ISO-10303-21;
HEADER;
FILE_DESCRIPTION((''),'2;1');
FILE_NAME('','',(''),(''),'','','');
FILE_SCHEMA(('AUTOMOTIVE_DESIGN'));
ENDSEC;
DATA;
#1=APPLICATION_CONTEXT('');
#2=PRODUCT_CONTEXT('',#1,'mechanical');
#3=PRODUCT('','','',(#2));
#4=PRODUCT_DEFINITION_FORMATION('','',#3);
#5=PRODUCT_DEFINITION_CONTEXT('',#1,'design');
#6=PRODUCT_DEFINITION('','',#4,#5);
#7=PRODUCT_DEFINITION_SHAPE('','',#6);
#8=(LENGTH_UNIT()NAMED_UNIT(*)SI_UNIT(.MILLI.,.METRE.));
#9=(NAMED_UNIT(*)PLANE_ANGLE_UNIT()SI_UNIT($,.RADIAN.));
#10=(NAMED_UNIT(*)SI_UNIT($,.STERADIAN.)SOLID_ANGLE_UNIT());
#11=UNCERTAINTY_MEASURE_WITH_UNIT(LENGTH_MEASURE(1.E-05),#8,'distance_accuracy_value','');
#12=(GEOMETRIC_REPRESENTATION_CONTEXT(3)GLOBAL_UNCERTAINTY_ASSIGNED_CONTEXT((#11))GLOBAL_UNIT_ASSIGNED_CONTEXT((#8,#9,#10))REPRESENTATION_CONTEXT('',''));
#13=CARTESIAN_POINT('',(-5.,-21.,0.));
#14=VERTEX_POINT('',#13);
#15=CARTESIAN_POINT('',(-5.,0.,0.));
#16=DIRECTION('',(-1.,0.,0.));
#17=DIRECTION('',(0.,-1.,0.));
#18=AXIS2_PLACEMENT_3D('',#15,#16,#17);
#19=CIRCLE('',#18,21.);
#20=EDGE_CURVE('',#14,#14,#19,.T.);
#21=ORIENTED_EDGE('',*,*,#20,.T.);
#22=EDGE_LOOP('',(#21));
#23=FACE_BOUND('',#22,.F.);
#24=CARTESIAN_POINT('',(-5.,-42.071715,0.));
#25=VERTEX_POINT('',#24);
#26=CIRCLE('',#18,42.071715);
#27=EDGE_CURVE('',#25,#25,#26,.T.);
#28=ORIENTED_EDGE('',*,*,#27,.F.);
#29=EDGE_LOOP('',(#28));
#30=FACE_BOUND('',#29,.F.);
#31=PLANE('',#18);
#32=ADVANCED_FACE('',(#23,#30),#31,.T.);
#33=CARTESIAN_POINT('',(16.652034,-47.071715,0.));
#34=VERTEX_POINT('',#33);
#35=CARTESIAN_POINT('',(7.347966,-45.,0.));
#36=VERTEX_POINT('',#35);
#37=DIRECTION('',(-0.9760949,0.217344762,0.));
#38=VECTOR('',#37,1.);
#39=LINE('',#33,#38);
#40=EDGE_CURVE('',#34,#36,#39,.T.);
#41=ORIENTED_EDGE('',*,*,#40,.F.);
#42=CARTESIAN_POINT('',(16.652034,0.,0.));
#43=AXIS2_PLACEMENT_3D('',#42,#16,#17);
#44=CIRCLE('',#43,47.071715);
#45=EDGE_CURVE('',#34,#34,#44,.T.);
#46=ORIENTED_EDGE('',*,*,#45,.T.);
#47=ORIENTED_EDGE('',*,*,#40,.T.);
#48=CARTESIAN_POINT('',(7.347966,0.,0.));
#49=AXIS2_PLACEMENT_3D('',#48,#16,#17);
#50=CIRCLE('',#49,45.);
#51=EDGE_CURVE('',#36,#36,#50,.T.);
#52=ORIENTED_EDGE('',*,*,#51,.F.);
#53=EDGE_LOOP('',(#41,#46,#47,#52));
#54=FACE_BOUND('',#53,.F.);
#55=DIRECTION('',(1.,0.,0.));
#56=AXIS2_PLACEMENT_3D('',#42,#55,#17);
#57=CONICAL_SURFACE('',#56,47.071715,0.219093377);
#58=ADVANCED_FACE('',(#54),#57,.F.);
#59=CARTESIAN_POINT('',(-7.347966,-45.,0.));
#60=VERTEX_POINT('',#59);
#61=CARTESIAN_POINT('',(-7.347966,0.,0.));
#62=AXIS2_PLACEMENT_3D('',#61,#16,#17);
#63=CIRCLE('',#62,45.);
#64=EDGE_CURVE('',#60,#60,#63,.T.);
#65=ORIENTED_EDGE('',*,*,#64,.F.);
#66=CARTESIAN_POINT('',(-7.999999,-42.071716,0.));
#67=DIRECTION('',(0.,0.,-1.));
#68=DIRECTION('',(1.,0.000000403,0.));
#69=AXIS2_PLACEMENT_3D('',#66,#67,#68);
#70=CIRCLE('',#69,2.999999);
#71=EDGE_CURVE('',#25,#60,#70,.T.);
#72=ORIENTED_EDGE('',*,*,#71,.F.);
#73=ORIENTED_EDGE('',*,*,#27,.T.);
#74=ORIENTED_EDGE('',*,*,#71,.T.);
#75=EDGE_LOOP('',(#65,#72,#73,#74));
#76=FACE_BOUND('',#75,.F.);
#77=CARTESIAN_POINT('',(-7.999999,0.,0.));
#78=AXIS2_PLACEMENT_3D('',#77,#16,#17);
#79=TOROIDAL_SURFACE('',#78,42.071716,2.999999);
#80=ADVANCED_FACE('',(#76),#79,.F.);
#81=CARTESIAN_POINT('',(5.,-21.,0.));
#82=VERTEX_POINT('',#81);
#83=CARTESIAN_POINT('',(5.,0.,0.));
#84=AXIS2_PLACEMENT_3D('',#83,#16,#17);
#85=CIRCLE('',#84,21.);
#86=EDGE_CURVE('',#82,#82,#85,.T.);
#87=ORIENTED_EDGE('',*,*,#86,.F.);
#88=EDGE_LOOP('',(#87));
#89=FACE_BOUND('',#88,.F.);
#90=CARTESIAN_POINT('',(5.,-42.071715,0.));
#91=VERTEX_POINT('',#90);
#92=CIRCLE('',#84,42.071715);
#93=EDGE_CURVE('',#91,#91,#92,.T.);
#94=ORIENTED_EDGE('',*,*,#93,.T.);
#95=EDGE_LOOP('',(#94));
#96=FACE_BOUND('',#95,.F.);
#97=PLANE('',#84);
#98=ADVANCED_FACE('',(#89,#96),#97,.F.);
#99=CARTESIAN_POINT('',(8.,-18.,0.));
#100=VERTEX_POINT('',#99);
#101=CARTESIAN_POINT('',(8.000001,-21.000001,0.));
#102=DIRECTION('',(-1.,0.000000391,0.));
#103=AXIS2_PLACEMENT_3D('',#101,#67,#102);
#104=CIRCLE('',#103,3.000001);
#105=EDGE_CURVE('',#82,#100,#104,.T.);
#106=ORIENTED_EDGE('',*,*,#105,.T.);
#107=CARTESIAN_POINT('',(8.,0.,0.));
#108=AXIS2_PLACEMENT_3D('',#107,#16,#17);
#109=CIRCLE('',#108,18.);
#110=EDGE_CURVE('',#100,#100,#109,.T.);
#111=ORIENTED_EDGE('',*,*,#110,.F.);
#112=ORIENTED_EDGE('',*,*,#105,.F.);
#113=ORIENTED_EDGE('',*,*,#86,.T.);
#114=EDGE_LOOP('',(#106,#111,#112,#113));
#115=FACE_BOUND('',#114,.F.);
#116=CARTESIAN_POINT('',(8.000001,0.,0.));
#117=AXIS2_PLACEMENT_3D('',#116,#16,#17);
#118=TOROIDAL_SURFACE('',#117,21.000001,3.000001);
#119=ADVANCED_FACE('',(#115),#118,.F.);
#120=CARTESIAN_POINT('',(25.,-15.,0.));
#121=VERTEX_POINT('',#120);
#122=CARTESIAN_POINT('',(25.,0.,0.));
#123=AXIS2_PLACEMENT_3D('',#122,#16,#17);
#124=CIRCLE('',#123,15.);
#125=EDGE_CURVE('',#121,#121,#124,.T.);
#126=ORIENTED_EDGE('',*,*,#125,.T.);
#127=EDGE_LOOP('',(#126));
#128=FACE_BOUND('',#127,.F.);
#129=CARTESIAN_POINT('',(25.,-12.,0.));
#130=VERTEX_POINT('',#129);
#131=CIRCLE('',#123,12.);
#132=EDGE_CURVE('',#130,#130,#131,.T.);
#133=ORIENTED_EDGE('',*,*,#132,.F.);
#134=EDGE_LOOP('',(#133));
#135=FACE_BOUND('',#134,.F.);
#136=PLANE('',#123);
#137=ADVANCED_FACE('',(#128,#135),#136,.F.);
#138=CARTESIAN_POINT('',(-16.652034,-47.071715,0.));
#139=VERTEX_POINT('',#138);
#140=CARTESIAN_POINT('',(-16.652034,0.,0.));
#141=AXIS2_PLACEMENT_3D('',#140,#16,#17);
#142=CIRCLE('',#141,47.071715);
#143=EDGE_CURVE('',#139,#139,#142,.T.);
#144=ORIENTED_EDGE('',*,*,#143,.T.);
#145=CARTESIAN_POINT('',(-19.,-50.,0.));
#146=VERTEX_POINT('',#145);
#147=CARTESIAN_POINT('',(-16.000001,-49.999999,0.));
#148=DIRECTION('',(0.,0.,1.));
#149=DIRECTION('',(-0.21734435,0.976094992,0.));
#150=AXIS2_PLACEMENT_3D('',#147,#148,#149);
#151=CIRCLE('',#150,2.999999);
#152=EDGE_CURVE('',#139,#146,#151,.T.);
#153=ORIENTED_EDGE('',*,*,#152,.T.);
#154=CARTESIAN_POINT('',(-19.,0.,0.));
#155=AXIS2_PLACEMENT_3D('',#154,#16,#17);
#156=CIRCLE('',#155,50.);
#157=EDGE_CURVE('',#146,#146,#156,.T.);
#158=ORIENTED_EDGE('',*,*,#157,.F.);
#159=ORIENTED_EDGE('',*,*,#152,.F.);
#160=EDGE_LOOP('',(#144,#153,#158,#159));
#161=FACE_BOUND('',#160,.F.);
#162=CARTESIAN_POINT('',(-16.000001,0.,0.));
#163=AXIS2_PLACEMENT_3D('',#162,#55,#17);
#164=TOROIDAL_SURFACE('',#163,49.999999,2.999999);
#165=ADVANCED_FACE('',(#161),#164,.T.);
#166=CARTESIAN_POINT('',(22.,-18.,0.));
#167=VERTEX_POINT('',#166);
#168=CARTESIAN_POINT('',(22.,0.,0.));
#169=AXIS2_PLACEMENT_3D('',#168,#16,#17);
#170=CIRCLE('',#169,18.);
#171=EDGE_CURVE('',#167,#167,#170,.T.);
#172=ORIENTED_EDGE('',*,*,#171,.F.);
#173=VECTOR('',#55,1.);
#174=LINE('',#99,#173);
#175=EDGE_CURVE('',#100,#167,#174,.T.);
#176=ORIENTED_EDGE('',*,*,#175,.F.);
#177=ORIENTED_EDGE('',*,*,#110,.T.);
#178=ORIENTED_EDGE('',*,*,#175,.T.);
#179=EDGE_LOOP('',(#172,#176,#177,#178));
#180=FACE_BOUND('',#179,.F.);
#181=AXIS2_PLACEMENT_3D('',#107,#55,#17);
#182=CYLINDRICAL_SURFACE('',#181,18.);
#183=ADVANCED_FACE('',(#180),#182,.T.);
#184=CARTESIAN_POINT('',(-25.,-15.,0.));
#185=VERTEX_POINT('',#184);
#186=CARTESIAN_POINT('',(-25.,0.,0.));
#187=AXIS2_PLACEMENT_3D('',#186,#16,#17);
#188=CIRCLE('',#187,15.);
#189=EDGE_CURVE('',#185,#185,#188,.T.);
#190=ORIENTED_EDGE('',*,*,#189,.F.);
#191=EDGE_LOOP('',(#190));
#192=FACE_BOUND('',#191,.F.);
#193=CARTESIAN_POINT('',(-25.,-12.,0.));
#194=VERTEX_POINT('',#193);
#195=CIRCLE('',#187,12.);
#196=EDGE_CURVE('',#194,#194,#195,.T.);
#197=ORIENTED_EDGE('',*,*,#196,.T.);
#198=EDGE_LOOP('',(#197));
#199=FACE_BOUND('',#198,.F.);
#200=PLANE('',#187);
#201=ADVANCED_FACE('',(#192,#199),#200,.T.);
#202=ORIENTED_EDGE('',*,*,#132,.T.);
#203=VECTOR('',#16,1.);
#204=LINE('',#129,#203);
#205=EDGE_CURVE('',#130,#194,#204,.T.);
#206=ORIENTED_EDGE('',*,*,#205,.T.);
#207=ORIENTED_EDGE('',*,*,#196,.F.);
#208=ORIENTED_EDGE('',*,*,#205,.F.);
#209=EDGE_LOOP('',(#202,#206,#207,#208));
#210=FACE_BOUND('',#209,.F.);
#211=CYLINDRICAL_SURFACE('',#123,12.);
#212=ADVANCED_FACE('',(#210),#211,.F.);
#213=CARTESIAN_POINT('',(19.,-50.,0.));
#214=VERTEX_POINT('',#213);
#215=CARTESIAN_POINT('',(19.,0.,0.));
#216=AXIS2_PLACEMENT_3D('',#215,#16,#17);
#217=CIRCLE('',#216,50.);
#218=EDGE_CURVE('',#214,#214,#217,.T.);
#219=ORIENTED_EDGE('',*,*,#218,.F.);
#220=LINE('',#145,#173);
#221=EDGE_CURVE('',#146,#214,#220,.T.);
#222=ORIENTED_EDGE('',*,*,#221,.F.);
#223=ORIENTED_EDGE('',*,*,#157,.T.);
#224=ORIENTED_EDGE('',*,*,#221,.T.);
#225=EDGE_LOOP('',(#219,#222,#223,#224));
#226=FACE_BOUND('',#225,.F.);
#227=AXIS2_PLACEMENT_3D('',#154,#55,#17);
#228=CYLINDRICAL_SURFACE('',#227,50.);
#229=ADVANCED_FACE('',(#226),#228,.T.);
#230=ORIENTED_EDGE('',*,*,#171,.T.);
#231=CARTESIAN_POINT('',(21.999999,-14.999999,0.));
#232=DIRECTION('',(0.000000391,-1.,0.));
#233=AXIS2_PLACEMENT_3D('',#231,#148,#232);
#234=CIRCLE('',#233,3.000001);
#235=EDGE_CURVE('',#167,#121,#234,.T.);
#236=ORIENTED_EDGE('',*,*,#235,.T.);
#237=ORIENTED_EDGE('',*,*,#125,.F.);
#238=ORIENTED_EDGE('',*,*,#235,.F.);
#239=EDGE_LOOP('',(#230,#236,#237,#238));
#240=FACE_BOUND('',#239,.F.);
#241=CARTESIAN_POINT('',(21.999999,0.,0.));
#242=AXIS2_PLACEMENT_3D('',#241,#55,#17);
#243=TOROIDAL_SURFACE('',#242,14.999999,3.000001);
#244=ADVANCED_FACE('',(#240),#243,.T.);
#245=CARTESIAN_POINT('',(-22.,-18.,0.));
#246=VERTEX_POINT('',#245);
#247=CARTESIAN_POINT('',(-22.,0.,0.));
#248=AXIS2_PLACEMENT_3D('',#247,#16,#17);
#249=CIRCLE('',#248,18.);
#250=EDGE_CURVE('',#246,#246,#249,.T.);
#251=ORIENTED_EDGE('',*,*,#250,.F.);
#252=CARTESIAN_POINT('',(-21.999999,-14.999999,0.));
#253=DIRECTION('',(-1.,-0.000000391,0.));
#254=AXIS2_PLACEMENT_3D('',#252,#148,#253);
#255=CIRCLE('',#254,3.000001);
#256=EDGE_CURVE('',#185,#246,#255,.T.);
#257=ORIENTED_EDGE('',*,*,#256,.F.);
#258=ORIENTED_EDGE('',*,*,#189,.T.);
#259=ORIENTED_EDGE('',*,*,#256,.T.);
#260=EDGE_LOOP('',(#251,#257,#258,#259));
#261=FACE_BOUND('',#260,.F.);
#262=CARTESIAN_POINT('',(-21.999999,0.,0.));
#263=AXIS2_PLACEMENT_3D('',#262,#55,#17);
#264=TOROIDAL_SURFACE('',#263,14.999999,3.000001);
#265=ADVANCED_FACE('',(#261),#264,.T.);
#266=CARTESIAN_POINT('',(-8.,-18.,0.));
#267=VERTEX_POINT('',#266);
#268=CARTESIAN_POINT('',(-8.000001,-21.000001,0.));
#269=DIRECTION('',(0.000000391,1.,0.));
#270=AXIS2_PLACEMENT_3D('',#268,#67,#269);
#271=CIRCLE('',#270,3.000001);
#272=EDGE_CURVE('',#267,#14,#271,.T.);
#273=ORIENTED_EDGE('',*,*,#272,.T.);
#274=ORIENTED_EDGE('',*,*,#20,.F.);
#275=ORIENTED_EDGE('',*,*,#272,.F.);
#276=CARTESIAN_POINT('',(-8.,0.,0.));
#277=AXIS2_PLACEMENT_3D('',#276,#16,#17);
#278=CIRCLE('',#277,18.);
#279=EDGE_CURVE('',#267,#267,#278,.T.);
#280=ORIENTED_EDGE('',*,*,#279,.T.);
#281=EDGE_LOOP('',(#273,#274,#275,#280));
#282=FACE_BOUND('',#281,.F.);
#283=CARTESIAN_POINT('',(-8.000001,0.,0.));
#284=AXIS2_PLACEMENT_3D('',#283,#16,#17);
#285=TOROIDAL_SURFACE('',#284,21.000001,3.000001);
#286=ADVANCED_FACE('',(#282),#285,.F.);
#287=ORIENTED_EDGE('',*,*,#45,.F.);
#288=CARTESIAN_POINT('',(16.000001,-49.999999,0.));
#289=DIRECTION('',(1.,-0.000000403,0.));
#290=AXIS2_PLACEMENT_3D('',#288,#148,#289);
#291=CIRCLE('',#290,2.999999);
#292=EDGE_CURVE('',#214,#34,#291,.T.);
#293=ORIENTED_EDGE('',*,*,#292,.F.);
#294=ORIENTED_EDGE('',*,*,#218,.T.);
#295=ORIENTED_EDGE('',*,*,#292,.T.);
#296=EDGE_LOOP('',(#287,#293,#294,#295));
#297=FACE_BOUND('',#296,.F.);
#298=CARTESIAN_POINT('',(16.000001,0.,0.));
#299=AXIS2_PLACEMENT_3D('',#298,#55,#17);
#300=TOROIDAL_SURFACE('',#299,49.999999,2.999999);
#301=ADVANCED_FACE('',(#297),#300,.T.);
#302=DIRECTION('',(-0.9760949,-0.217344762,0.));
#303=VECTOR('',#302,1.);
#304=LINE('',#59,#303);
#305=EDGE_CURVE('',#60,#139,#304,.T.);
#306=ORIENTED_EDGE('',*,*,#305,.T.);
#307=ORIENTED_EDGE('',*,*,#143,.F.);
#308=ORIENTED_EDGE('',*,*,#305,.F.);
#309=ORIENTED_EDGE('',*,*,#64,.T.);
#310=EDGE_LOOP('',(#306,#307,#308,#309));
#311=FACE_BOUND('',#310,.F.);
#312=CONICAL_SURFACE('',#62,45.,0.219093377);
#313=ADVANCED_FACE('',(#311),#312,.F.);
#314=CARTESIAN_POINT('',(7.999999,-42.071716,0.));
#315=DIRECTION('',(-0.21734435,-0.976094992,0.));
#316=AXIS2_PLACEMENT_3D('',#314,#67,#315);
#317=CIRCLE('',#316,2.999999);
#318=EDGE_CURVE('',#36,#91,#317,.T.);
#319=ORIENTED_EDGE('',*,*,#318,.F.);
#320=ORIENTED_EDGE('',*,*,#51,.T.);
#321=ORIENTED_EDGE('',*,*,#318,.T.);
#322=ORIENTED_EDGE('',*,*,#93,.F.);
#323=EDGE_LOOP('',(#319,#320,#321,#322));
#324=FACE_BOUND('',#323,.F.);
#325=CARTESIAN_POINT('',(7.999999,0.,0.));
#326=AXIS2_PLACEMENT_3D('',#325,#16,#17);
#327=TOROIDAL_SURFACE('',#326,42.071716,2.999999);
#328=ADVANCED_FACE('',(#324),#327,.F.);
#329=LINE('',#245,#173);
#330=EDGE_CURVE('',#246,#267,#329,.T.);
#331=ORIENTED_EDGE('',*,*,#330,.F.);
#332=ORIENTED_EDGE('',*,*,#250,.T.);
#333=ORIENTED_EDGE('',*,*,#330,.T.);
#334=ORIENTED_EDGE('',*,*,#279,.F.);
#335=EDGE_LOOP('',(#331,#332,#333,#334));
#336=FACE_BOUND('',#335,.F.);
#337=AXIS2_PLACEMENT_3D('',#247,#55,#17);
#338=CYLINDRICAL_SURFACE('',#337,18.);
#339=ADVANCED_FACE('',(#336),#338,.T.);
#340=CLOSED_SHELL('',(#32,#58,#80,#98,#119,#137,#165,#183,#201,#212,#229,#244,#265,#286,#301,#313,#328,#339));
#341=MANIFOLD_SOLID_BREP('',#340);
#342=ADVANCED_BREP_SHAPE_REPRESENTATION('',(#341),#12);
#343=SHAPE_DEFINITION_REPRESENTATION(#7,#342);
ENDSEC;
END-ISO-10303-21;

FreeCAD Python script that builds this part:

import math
import FreeCAD as App
import Part
import Sketcher
from FreeCAD import Vector

doc = App.newDocument("Part")
body = doc.addObject("PartDesign::Body", "Body")

# Sketch on XY plane
sketch1 = doc.addObject("Sketcher::SketchObject", "Sketch")
body.addObject(sketch1)
sketch1.AttachmentSupport = (doc.XY_Plane, [""])
sketch1.MapMode = "FlatFace"
sketch1.addGeometry([
    Part.LineSegment(Vector(-22, -18, 0), Vector(-8, -18, 0)),  # 0
    Part.ArcOfCircle(Part.Circle(Vector(-8.000001, -21.000001, 0), Vector(0, 0, 1), 3.000001), math.radians(0.000022), math.radians(89.999978)),  # 1
    Part.LineSegment(Vector(-5, -21, 0), Vector(-5, -42.071715, 0)),  # 2
    Part.ArcOfCircle(Part.Circle(Vector(-7.999999, -42.071716, 0), Vector(0, 0, 1), 2.999999), math.radians(-77.446898), math.radians(0.000023)),  # 3
    Part.LineSegment(Vector(-7.347966, -45, 0), Vector(-16.652034, -47.071715, 0)),  # 4
    Part.ArcOfCircle(Part.Circle(Vector(-16.000001, -49.999999, 0), Vector(0, 0, 1), 2.999999), math.radians(102.553102), math.radians(180.000023)),  # 5
    Part.LineSegment(Vector(-19, -50, 0), Vector(19, -50, 0)),  # 6
    Part.ArcOfCircle(Part.Circle(Vector(16.000001, -49.999999, 0), Vector(0, 0, 1), 2.999999), math.radians(-0.000023), math.radians(77.446898)),  # 7
    Part.LineSegment(Vector(16.652034, -47.071715, 0), Vector(7.347966, -45, 0)),  # 8
    Part.ArcOfCircle(Part.Circle(Vector(7.999999, -42.071716, 0), Vector(0, 0, 1), 2.999999), math.radians(179.999977), math.radians(257.446898)),  # 9
    Part.LineSegment(Vector(5, -42.071715, 0), Vector(5, -21, 0)),  # 10
    Part.ArcOfCircle(Part.Circle(Vector(8.000001, -21.000001, 0), Vector(0, 0, 1), 3.000001), math.radians(90.000022), math.radians(179.999978)),  # 11
    Part.LineSegment(Vector(8, -18, 0), Vector(22, -18, 0)),  # 12
    Part.ArcOfCircle(Part.Circle(Vector(21.999999, -14.999999, 0), Vector(0, 0, 1), 3.000001), math.radians(-89.999978), math.radians(-0.000022)),  # 13
    Part.LineSegment(Vector(25, -15, 0), Vector(25, -12, 0)),  # 14
    Part.LineSegment(Vector(25, -12, 0), Vector(-25, -12, 0)),  # 15
    Part.LineSegment(Vector(-25, -12, 0), Vector(-25, -15, 0)),  # 16
    Part.ArcOfCircle(Part.Circle(Vector(-21.999999, -14.999999, 0), Vector(0, 0, 1), 3.000001), math.radians(-179.999978), math.radians(-90.000022)),  # 17
], False)
sketch1.addConstraint([
    Sketcher.Constraint("Tangent", 0, 2, 1, 2),
    Sketcher.Constraint("Tangent", 1, 1, 2, 1),
    Sketcher.Constraint("Tangent", 2, 2, 3, 2),
    Sketcher.Constraint("Tangent", 3, 1, 4, 1),
    Sketcher.Constraint("Tangent", 4, 2, 5, 1),
    Sketcher.Constraint("Coincident", 5, 2, 6, 1),
    Sketcher.Constraint("Coincident", 6, 2, 7, 1),
    Sketcher.Constraint("Tangent", 7, 2, 8, 1),
    Sketcher.Constraint("Tangent", 8, 2, 9, 2),
    Sketcher.Constraint("Tangent", 9, 1, 10, 1),
    Sketcher.Constraint("Tangent", 10, 2, 11, 2),
    Sketcher.Constraint("Tangent", 11, 1, 12, 1),
    Sketcher.Constraint("Tangent", 12, 2, 13, 1),
    Sketcher.Constraint("Tangent", 13, 2, 14, 1),
    Sketcher.Constraint("Coincident", 14, 2, 15, 1),
    Sketcher.Constraint("Coincident", 15, 2, 16, 1),
    Sketcher.Constraint("Tangent", 16, 2, 17, 1),
    Sketcher.Constraint("Tangent", 17, 2, 0, 1),
    Sketcher.Constraint("Horizontal", 0),
    Sketcher.Constraint("Vertical", 2),
    Sketcher.Constraint("Horizontal", 6),
    Sketcher.Constraint("Vertical", 10),
    Sketcher.Constraint("Horizontal", 12),
    Sketcher.Constraint("Vertical", 14),
    Sketcher.Constraint("Horizontal", 15),
    Sketcher.Constraint("Vertical", 16),
    Sketcher.Constraint("Equal", 3, 5),
    Sketcher.Constraint("Equal", 5, 7),
    Sketcher.Constraint("Equal", 7, 9),
    Sketcher.Constraint("Equal", 1, 11),
    Sketcher.Constraint("Equal", 11, 13),
    Sketcher.Constraint("Equal", 13, 17),
    Sketcher.Constraint("Symmetric", 5, 3, 7, 3, -2),
    Sketcher.Constraint("Symmetric", 3, 3, 9, 3, -2),
    Sketcher.Constraint("Symmetric", 13, 3, 17, 3, -2),
    Sketcher.Constraint("Horizontal", 7, 3, 5, 2),
    Sketcher.Constraint("Vertical", 3, 3, 0, 2),
    Sketcher.Constraint("Radius", 1, 3.000001),
    Sketcher.Constraint("DistanceX", 0, 1, 0, 2, 14.0),
    Sketcher.Constraint("DistanceX", 6, 1, 6, 2, 38.0),
    Sketcher.Constraint("DistanceX", 15, 2, 15, 1, 50.0),
    Sketcher.Constraint("DistanceY", 14, 1, 14, 2, 3.0),
    Sketcher.Constraint("DistanceY", 1, 3, -1, 1, 21.000001),
    Sketcher.Constraint("DistanceY", 5, 3, -1, 1, 49.999999),
    Sketcher.Constraint("DistanceY", 3, 1, -1, 1, 45.0),
])
revolution = doc.addObject("PartDesign::Revolution", "Revolution")
body.addObject(revolution)
revolution.Profile = sketch1
revolution.ReferenceAxis = (sketch1, ["H_Axis"])
revolution.Angle = 360

doc.recompute()
